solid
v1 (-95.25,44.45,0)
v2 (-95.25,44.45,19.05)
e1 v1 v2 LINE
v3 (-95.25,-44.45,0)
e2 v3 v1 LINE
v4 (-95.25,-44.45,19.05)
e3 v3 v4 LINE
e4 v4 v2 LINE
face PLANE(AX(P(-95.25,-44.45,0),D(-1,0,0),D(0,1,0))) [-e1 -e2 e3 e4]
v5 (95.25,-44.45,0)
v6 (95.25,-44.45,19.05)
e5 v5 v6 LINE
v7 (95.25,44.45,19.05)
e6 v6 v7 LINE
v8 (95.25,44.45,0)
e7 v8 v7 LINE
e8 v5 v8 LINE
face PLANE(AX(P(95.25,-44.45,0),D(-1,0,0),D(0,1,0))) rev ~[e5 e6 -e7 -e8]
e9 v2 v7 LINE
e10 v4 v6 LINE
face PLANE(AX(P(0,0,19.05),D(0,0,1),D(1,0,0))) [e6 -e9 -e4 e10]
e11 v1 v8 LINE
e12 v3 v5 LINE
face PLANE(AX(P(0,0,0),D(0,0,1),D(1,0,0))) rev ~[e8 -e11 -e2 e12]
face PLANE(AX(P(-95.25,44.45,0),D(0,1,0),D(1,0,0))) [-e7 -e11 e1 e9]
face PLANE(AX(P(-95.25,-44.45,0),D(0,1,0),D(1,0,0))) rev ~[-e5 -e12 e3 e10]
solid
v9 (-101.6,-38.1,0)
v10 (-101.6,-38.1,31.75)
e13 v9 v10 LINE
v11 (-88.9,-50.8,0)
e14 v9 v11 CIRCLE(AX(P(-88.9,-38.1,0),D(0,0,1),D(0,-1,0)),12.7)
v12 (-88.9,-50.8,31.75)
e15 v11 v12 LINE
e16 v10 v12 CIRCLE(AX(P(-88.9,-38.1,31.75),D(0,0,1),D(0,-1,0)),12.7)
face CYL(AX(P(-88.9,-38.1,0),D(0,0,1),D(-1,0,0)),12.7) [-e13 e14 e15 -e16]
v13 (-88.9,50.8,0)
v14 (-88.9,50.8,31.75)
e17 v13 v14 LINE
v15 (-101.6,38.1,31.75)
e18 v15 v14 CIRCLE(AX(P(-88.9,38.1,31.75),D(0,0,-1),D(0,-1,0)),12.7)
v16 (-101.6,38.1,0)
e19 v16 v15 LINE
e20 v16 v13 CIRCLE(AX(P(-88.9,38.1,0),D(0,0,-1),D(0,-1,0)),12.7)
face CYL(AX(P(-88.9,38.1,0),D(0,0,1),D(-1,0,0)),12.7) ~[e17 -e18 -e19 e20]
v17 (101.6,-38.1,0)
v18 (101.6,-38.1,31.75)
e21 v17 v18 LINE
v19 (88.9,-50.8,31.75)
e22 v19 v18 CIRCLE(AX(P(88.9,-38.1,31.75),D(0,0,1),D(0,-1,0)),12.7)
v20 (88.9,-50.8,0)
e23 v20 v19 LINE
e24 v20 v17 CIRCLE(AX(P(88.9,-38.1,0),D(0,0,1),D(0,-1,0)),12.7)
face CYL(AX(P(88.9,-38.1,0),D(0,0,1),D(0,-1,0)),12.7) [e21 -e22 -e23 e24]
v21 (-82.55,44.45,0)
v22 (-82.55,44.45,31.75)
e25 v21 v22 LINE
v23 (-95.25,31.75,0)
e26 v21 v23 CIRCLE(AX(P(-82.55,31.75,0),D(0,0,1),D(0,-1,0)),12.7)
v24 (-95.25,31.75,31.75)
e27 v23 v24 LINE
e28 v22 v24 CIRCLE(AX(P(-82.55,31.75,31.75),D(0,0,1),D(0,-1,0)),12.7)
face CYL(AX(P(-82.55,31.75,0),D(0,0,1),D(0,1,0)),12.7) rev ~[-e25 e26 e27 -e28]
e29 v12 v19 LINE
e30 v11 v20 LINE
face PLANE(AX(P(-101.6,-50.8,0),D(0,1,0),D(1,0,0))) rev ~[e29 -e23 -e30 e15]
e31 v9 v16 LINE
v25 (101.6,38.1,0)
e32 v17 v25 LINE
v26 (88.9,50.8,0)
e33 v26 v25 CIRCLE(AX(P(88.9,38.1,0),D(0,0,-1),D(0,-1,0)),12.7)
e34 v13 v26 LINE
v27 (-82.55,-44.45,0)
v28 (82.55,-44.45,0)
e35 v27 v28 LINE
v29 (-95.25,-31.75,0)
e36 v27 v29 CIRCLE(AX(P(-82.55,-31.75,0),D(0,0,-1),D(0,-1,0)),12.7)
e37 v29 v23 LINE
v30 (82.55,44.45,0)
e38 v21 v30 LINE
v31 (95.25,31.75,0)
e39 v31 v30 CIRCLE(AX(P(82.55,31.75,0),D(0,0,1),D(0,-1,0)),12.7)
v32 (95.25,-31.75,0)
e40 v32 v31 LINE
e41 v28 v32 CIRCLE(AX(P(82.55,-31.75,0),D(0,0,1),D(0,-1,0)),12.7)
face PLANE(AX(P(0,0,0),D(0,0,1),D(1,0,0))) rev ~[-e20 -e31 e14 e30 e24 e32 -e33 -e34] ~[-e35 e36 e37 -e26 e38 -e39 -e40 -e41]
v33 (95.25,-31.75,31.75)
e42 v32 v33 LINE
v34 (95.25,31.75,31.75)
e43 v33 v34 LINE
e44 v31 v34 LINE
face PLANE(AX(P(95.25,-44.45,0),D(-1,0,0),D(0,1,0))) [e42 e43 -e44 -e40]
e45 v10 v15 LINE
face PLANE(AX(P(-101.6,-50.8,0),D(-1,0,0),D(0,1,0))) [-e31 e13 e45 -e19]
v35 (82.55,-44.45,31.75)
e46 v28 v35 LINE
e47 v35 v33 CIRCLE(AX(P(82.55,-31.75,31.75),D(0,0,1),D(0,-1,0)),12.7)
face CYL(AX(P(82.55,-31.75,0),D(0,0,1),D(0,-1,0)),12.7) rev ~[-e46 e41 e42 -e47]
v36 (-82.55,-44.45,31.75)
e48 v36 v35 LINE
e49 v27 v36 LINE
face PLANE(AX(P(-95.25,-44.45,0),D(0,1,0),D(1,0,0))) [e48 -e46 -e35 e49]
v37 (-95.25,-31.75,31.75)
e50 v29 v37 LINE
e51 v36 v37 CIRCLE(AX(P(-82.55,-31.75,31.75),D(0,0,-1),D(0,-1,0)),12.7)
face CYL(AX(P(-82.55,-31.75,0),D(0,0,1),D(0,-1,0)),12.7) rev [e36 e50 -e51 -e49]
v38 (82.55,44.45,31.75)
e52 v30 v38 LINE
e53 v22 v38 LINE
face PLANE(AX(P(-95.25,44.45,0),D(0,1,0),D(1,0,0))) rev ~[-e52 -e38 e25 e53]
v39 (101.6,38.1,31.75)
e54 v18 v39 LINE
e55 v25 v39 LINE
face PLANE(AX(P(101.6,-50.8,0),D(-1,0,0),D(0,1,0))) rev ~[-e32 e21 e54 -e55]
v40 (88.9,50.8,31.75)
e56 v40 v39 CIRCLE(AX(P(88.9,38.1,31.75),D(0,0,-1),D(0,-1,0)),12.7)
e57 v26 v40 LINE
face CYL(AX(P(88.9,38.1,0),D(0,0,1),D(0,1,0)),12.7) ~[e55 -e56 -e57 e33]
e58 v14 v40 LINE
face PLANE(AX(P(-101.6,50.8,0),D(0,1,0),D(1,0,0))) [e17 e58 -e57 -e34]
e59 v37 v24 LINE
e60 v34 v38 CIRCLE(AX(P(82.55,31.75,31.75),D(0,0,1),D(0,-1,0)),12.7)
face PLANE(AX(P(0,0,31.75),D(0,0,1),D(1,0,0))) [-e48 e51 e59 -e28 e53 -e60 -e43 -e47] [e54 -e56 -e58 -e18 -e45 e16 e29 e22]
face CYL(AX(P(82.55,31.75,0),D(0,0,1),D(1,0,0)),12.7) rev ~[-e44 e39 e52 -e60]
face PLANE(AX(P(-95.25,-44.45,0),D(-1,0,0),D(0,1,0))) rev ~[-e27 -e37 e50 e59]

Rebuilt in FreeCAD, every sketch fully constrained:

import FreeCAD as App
import Part
import Sketcher
Q = App.Units.Quantity


def edges_at(feature, points):
    """Names of the edges that pass closest to the given points."""
    edges = feature.Shape.Edges
    near = lambda p: min(range(len(edges)), key=lambda i: edges[i].distToShape(Part.Vertex(*p))[0])
    return sorted({f"Edge{near(p) + 1}" for p in points})

doc = App.newDocument("Part")
body = doc.addObject("PartDesign::Body", "Body")

# Sketch on XY plane
sketch1 = body.newObject("Sketcher::SketchObject", "Sketch")
sketch1.AttachmentSupport = (doc.getObject("XY_Plane"), [""])
sketch1.MapMode = "FlatFace"
sketch1.addGeometry([
    Part.LineSegment(App.Vector(-95.25, 44.45, 0), App.Vector(-95.25, -44.45, 0)),
    Part.LineSegment(App.Vector(-95.25, -44.45, 0), App.Vector(95.25, -44.45, 0)),
    Part.LineSegment(App.Vector(95.25, -44.45, 0), App.Vector(95.25, 44.45, 0)),
    Part.LineSegment(App.Vector(95.25, 44.45, 0), App.Vector(-95.25, 44.45, 0)),
], False)
sketch1.addConstraint([
    Sketcher.Constraint("Coincident", 0, 2, 1, 1),
    Sketcher.Constraint("Coincident", 1, 2, 2, 1),
    Sketcher.Constraint("Coincident", 2, 2, 3, 1),
    Sketcher.Constraint("Coincident", 3, 2, 0, 1),
    Sketcher.Constraint("Vertical", 0),
    Sketcher.Constraint("Horizontal", 1),
    Sketcher.Constraint("Vertical", 2),
    Sketcher.Constraint("Horizontal", 3),
    Sketcher.Constraint("Symmetric", 0, 2, 2, 2, -1, 1),
    Sketcher.Constraint("DistanceX", 1, 1, 1, 2, Q("7.5 in")),
    Sketcher.Constraint("DistanceY", 0, 2, 0, 1, Q("3.5 in")),
])
pad1 = body.newObject("PartDesign::Pad", "Pad")
pad1.Profile = sketch1
pad1.Length = Q("0.75 in")
body2 = doc.addObject("PartDesign::Body", "Body001")

# Sketch on XY plane
sketch2 = body2.newObject("Sketcher::SketchObject", "Sketch001")
sketch2.AttachmentSupport = (doc.getObject("XY_Plane001"), [""])
sketch2.MapMode = "FlatFace"
sketch2.addGeometry([
    Part.LineSegment(App.Vector(-101.6, 50.8, 0), App.Vector(-101.6, -50.8, 0)),  # 0
    Part.LineSegment(App.Vector(-101.6, -50.8, 0), App.Vector(101.6, -50.8, 0)),  # 1
    Part.LineSegment(App.Vector(101.6, -50.8, 0), App.Vector(101.6, 50.8, 0)),  # 2
    Part.LineSegment(App.Vector(101.6, 50.8, 0), App.Vector(-101.6, 50.8, 0)),  # 3
    Part.LineSegment(App.Vector(95.25, -44.45, 0), App.Vector(-95.25, -44.45, 0)),  # 4
    Part.LineSegment(App.Vector(-95.25, -44.45, 0), App.Vector(-95.25, 44.45, 0)),  # 5
    Part.LineSegment(App.Vector(-95.25, 44.45, 0), App.Vector(95.25, 44.45, 0)),  # 6
    Part.LineSegment(App.Vector(95.25, 44.45, 0), App.Vector(95.25, -44.45, 0)),  # 7
], False)
sketch2.addConstraint([
    Sketcher.Constraint("Coincident", 0, 2, 1, 1),
    Sketcher.Constraint("Coincident", 1, 2, 2, 1),
    Sketcher.Constraint("Coincident", 2, 2, 3, 1),
    Sketcher.Constraint("Coincident", 3, 2, 0, 1),
    Sketcher.Constraint("Coincident", 4, 2, 5, 1),
    Sketcher.Constraint("Coincident", 5, 2, 6, 1),
    Sketcher.Constraint("Coincident", 6, 2, 7, 1),
    Sketcher.Constraint("Coincident", 7, 2, 4, 1),
    Sketcher.Constraint("Vertical", 0),
    Sketcher.Constraint("Horizontal", 1),
    Sketcher.Constraint("Vertical", 2),
    Sketcher.Constraint("Horizontal", 3),
    Sketcher.Constraint("Horizontal", 4),
    Sketcher.Constraint("Vertical", 5),
    Sketcher.Constraint("Horizontal", 6),
    Sketcher.Constraint("Vertical", 7),
    Sketcher.Constraint("Symmetric", 0, 2, 2, 2, -1, 1),
    Sketcher.Constraint("Symmetric", 4, 2, 6, 2, -1, 1),
    Sketcher.Constraint("DistanceX", 1, 1, 1, 2, Q("8 in")),
    Sketcher.Constraint("DistanceY", 0, 2, 0, 1, Q("4 in")),
    Sketcher.Constraint("DistanceX", 4, 2, 4, 1, Q("7.5 in")),
    Sketcher.Constraint("DistanceY", 5, 1, 5, 2, Q("3.5 in")),
])
pad2 = body2.newObject("PartDesign::Pad", "Pad001")
pad2.Profile = sketch2
pad2.Length = Q("1.25 in")
doc.recompute()

fillet = body2.newObject("PartDesign::Fillet", "Fillet")
fillet.Base = (pad2, edges_at(pad2, [
    (-101.6, 50.8, 15.875),
    (-101.6, -50.8, 15.875),
    (101.6, -50.8, 15.875),
    (101.6, 50.8, 15.875),
    (-95.25, 44.45, 15.875),
    (-95.25, -44.45, 15.875),
    (95.25, 44.45, 15.875),
    (95.25, -44.45, 15.875),
]))
fillet.Radius = Q("0.5 in")

doc.recompute()
